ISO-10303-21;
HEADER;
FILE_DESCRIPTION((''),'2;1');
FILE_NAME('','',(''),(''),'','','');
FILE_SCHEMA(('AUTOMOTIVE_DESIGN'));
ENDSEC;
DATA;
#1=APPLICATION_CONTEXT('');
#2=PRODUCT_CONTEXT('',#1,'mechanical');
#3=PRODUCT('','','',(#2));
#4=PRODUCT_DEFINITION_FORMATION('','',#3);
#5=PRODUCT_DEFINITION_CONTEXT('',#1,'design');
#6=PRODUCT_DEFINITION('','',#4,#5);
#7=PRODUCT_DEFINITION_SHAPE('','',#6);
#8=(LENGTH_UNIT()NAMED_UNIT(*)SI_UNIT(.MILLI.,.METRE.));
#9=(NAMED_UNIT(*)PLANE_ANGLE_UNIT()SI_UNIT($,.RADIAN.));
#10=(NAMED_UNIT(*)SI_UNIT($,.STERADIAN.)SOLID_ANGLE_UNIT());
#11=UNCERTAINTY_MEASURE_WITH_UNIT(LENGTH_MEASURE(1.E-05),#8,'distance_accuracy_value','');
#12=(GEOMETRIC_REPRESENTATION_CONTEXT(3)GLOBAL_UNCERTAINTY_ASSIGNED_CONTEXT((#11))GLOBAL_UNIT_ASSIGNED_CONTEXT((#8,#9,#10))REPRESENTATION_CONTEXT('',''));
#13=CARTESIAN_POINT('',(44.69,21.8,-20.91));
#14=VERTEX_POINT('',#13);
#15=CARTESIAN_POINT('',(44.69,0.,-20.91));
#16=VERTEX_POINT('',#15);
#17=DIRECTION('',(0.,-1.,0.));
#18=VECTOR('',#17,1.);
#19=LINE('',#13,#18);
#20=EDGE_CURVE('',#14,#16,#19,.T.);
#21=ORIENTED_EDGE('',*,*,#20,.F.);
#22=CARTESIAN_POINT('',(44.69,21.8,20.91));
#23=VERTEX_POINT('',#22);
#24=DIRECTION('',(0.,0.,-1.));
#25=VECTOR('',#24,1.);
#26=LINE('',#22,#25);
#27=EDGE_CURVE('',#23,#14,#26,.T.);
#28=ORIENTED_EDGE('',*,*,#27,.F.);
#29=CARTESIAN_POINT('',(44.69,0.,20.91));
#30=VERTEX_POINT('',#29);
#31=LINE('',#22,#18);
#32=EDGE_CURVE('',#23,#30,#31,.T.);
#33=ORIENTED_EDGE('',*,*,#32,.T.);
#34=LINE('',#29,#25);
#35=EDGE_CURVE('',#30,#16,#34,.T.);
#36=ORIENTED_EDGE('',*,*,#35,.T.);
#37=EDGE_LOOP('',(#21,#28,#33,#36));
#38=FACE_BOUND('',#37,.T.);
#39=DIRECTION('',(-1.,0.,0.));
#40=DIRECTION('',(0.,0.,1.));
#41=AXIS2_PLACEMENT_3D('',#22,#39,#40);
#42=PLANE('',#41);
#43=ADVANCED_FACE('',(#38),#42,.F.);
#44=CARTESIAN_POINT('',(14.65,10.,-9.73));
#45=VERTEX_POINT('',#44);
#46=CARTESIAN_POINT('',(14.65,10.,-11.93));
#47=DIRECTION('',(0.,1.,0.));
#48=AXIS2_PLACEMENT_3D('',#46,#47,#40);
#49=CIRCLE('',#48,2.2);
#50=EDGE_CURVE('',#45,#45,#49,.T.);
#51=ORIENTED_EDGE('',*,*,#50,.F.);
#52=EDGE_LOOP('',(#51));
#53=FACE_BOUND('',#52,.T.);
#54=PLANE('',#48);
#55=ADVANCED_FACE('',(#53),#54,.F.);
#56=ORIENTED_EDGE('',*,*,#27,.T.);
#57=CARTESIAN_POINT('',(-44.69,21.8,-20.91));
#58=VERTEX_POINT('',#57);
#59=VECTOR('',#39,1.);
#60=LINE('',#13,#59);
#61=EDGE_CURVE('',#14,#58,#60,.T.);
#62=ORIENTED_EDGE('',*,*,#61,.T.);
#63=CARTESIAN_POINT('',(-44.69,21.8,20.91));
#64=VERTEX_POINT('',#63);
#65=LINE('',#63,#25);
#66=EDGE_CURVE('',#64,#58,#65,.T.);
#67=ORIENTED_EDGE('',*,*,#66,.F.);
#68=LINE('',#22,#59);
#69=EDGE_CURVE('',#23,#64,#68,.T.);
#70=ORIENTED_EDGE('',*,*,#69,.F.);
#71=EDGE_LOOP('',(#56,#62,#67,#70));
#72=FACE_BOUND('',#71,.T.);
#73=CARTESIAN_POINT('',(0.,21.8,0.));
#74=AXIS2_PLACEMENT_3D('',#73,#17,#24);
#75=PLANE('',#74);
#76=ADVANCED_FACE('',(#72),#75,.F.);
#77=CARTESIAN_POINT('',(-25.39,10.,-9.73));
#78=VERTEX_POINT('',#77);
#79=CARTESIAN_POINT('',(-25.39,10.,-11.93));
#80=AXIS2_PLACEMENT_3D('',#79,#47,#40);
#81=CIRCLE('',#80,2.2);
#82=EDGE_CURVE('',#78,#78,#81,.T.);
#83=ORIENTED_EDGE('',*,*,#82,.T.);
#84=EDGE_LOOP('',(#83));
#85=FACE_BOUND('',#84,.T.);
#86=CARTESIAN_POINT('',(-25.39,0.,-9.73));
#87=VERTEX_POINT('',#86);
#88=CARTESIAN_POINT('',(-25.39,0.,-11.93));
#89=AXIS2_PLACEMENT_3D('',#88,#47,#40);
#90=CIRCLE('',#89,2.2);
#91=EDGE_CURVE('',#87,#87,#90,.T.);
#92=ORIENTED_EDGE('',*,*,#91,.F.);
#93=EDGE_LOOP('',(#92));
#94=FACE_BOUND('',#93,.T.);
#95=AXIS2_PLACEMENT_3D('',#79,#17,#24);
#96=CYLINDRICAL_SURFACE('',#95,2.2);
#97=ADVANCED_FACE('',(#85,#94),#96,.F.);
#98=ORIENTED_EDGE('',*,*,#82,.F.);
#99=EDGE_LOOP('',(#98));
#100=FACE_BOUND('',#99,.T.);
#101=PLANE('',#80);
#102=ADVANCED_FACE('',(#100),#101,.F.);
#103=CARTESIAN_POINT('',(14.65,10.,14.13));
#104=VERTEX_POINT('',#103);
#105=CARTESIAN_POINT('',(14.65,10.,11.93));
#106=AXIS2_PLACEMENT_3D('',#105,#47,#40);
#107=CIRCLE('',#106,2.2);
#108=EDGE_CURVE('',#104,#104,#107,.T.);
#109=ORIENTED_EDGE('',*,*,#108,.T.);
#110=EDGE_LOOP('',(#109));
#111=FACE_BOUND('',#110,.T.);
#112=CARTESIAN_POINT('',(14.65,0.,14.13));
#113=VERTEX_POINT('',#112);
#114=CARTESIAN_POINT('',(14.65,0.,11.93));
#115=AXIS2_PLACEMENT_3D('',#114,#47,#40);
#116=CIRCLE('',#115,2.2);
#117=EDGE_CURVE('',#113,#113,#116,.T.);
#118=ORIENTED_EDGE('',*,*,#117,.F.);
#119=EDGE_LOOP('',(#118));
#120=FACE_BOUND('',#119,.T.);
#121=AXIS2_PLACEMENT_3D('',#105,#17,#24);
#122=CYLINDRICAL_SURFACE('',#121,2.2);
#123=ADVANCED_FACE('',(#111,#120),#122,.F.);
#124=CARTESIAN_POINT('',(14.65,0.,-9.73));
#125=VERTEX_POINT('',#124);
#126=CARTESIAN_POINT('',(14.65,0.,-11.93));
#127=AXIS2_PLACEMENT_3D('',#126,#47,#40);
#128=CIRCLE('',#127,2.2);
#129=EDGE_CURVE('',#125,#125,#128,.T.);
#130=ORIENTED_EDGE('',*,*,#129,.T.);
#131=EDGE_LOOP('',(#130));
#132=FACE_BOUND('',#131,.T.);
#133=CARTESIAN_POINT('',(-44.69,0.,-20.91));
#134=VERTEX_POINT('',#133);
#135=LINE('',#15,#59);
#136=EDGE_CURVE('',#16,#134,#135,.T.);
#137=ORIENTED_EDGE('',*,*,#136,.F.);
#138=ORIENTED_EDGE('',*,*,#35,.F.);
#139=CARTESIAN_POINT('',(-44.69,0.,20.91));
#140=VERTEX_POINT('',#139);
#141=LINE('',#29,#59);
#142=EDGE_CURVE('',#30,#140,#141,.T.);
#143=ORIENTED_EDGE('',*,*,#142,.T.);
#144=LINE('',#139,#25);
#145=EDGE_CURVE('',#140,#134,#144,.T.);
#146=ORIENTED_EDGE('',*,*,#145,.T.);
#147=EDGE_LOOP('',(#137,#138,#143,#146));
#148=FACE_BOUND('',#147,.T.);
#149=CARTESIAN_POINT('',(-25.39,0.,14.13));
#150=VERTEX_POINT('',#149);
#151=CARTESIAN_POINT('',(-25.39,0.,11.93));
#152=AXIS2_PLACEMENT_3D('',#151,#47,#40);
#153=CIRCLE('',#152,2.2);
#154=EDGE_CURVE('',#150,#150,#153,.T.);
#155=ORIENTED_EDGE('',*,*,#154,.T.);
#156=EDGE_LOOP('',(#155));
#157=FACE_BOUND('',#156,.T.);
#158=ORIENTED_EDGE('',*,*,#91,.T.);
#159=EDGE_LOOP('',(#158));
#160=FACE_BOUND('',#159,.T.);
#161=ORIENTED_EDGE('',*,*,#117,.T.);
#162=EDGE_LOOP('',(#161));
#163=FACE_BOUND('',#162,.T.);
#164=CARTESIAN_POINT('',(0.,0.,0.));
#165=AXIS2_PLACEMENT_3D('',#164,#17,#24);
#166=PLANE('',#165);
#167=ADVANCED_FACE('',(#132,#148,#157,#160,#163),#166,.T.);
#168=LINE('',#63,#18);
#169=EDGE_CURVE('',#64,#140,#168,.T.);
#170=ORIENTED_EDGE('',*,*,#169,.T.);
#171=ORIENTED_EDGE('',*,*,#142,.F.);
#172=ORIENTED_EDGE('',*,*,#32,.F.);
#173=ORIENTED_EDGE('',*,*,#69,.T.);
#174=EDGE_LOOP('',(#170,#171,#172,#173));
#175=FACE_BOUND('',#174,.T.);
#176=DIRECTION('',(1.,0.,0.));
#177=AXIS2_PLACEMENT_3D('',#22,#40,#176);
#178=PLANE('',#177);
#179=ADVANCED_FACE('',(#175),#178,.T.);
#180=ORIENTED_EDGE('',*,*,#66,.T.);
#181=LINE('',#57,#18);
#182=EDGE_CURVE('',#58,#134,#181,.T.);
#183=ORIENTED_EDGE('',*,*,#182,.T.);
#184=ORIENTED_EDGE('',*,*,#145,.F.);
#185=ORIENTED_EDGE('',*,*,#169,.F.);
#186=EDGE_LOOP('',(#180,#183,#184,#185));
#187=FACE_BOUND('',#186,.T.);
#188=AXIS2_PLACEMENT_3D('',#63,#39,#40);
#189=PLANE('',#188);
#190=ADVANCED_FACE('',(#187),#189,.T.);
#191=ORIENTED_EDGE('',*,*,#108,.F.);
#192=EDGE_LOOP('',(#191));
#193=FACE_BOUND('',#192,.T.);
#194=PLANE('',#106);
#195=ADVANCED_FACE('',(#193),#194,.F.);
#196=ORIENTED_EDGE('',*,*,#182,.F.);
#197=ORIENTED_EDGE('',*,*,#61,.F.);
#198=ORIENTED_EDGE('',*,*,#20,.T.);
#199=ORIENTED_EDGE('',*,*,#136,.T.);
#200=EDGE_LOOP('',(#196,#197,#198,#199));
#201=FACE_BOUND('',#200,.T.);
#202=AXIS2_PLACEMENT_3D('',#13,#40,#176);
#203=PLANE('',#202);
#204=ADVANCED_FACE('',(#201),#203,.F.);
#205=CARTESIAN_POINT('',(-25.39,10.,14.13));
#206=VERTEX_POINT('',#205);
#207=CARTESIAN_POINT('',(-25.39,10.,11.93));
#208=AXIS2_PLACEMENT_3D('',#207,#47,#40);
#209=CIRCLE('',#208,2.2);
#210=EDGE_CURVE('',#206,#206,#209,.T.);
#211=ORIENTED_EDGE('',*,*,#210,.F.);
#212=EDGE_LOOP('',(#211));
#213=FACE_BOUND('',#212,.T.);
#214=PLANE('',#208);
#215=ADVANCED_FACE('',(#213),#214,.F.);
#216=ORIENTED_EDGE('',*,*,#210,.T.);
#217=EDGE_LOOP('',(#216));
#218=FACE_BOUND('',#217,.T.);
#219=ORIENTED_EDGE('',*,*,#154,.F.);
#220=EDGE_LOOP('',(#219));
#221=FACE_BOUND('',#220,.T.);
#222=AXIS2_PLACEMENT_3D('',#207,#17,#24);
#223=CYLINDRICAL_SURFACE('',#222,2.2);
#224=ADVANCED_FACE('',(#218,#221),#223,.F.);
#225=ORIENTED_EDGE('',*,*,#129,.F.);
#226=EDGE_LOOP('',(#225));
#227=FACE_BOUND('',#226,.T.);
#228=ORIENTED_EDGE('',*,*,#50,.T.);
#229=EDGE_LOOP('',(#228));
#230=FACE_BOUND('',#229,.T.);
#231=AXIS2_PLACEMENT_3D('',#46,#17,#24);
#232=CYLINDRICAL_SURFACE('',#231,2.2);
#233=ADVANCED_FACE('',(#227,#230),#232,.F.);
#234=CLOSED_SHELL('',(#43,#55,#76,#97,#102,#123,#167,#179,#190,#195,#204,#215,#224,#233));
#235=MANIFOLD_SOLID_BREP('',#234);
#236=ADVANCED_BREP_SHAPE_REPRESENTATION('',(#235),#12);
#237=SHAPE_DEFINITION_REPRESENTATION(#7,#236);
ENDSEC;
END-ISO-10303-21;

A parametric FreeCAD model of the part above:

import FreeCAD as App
import Part
import Sketcher


def add_polygon(sketch, points):
    """Adds a closed chain of lines whose ends are joined by coincident constraints."""
    first, n = sketch.GeometryCount, len(points)
    for a, b in zip(points, points[1:] + points[:1]):
        sketch.addGeometry(Part.LineSegment(App.Vector(*a, 0), App.Vector(*b, 0)), False)
    for i in range(n):
        sketch.addConstraint(Sketcher.Constraint("Coincident", first + i, 2, first + (i + 1) % n, 1))

doc = App.newDocument("Part")
params = doc.addObject("Spreadsheet::Sheet", "Params")
for row, (alias, value) in enumerate([
    ("sketch1_width", "89.38 mm"),
    ("sketch1_height", "41.82 mm"),
    ("pad1_length", "21.8 mm"),
    ("sketch2_diameter", "4.4 mm"),
    ("pocket1_length", "10 mm"),
], start=1):
    params.set(f"A{row}", alias)
    params.set(f"B{row}", "=" + value)
    params.setAlias(f"B{row}", alias)

body = doc.addObject("PartDesign::Body", "Body")

sketch1 = body.newObject("Sketcher::SketchObject", "Sketch")
sketch1.AttachmentSupport = (doc.getObject("XZ_Plane"), [""])
sketch1.MapMode = "FlatFace"
add_polygon(sketch1, [(-45, -21), (-45, 21), (45, 21), (45, -21)])
sketch1.addConstraint(Sketcher.Constraint("Vertical", 0))
sketch1.addConstraint(Sketcher.Constraint("Horizontal", 1))
sketch1.addConstraint(Sketcher.Constraint("Vertical", 2))
sketch1.addConstraint(Sketcher.Constraint("Horizontal", 3))
sketch1.addConstraint(Sketcher.Constraint("Symmetric", 0, 2, 2, 2, -1, 1))
sketch1.addConstraint(Sketcher.Constraint("DistanceX", 1, 1, 1, 2, 89.38))
sketch1.addConstraint(Sketcher.Constraint("DistanceY", 0, 1, 0, 2, 41.82))
sketch1.setExpression("Constraints[9]", "Params.sketch1_width")
sketch1.setExpression("Constraints[10]", "Params.sketch1_height")
pad1 = body.newObject("PartDesign::Pad", "Pad")
pad1.Profile = sketch1
pad1.setExpression("Length", "Params.pad1_length")
pad1.Reversed = True

sketch2 = body.newObject("Sketcher::SketchObject", "Sketch001")
sketch2.AttachmentSupport = (doc.getObject("XZ_Plane"), [""])
sketch2.MapMode = "FlatFace"
sketch2.addGeometry(Part.Circle(App.Vector(-25.4, -11.9, 0), App.Vector(0, 0, 1), 2.2), False)
sketch2.addGeometry(Part.Circle(App.Vector(-25.4, 11.9, 0), App.Vector(0, 0, 1), 2.2), False)
sketch2.addGeometry(Part.Circle(App.Vector(14.7, -11.9, 0), App.Vector(0, 0, 1), 2.2), False)
sketch2.addGeometry(Part.Circle(App.Vector(14.7, 11.9, 0), App.Vector(0, 0, 1), 2.2), False)
sketch2.addConstraint(Sketcher.Constraint("Equal", 0, 1))
sketch2.addConstraint(Sketcher.Constraint("Equal", 1, 2))
sketch2.addConstraint(Sketcher.Constraint("Equal", 2, 3))
sketch2.addConstraint(Sketcher.Constraint("Symmetric", 0, 3, 1, 3, -1))
sketch2.addConstraint(Sketcher.Constraint("Symmetric", 2, 3, 3, 3, -1))
sketch2.addConstraint(Sketcher.Constraint("Horizontal", 0, 3, 2, 3))
sketch2.addConstraint(Sketcher.Constraint("Diameter", 0, 4.4))
sketch2.addConstraint(Sketcher.Constraint("DistanceX", 0, 3, -1, 1, 25.39))
sketch2.addConstraint(Sketcher.Constraint("DistanceY", 0, 3, -1, 1, 11.93))
sketch2.addConstraint(Sketcher.Constraint("DistanceX", -1, 1, 2, 3, 14.65))
sketch2.setExpression("Constraints[6]", "Params.sketch2_diameter")
pocket1 = body.newObject("PartDesign::Pocket", "Pocket")
pocket1.Profile = sketch2
pocket1.setExpression("Length", "Params.pocket1_length")

doc.recompute()
